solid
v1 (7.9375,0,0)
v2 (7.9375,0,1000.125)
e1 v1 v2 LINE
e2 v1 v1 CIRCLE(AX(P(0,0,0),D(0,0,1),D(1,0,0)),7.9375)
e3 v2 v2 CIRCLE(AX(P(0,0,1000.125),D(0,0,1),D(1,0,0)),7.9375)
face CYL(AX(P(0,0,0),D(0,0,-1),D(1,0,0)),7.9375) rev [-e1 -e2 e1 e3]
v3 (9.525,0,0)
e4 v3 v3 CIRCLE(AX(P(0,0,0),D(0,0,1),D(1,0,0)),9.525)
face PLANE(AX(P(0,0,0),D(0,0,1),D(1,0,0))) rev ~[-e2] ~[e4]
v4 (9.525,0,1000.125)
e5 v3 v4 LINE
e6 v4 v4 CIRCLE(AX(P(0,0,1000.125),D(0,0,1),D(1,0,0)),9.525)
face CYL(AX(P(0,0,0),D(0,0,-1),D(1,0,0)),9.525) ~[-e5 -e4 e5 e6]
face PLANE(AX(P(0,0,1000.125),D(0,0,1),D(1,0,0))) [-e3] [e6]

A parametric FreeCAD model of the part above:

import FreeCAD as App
import Part
import Sketcher
from FreeCAD import Vector
Q = App.Units.Quantity

doc = App.newDocument("Part")
body = doc.addObject("PartDesign::Body", "Body")

# Sketch on XY plane
sketch1 = body.newObject("Sketcher::SketchObject", "Sketch")
sketch1.AttachmentSupport = (doc.getObject("XY_Plane"), [""])
sketch1.MapMode = "FlatFace"
sketch1.addGeometry(Part.Circle(Vector(0, 0, 0), Vector(0, 0, 1), 9.525), False)
sketch1.addGeometry(Part.Circle(Vector(0, 0, 0), Vector(0, 0, 1), 7.9375), False)
sketch1.addConstraint(Sketcher.Constraint("Coincident", 0, 3, -1, 1))
sketch1.addConstraint(Sketcher.Constraint("Coincident", 1, 3, -1, 1))
sketch1.addConstraint(Sketcher.Constraint("Diameter", 0, Q("0.75 in")))
sketch1.addConstraint(Sketcher.Constraint("Diameter", 1, Q("0.625 in")))
pad1 = body.newObject("PartDesign::Pad", "Pad")
pad1.Profile = sketch1
pad1.Length = Q("39.375 in")

doc.recompute()
